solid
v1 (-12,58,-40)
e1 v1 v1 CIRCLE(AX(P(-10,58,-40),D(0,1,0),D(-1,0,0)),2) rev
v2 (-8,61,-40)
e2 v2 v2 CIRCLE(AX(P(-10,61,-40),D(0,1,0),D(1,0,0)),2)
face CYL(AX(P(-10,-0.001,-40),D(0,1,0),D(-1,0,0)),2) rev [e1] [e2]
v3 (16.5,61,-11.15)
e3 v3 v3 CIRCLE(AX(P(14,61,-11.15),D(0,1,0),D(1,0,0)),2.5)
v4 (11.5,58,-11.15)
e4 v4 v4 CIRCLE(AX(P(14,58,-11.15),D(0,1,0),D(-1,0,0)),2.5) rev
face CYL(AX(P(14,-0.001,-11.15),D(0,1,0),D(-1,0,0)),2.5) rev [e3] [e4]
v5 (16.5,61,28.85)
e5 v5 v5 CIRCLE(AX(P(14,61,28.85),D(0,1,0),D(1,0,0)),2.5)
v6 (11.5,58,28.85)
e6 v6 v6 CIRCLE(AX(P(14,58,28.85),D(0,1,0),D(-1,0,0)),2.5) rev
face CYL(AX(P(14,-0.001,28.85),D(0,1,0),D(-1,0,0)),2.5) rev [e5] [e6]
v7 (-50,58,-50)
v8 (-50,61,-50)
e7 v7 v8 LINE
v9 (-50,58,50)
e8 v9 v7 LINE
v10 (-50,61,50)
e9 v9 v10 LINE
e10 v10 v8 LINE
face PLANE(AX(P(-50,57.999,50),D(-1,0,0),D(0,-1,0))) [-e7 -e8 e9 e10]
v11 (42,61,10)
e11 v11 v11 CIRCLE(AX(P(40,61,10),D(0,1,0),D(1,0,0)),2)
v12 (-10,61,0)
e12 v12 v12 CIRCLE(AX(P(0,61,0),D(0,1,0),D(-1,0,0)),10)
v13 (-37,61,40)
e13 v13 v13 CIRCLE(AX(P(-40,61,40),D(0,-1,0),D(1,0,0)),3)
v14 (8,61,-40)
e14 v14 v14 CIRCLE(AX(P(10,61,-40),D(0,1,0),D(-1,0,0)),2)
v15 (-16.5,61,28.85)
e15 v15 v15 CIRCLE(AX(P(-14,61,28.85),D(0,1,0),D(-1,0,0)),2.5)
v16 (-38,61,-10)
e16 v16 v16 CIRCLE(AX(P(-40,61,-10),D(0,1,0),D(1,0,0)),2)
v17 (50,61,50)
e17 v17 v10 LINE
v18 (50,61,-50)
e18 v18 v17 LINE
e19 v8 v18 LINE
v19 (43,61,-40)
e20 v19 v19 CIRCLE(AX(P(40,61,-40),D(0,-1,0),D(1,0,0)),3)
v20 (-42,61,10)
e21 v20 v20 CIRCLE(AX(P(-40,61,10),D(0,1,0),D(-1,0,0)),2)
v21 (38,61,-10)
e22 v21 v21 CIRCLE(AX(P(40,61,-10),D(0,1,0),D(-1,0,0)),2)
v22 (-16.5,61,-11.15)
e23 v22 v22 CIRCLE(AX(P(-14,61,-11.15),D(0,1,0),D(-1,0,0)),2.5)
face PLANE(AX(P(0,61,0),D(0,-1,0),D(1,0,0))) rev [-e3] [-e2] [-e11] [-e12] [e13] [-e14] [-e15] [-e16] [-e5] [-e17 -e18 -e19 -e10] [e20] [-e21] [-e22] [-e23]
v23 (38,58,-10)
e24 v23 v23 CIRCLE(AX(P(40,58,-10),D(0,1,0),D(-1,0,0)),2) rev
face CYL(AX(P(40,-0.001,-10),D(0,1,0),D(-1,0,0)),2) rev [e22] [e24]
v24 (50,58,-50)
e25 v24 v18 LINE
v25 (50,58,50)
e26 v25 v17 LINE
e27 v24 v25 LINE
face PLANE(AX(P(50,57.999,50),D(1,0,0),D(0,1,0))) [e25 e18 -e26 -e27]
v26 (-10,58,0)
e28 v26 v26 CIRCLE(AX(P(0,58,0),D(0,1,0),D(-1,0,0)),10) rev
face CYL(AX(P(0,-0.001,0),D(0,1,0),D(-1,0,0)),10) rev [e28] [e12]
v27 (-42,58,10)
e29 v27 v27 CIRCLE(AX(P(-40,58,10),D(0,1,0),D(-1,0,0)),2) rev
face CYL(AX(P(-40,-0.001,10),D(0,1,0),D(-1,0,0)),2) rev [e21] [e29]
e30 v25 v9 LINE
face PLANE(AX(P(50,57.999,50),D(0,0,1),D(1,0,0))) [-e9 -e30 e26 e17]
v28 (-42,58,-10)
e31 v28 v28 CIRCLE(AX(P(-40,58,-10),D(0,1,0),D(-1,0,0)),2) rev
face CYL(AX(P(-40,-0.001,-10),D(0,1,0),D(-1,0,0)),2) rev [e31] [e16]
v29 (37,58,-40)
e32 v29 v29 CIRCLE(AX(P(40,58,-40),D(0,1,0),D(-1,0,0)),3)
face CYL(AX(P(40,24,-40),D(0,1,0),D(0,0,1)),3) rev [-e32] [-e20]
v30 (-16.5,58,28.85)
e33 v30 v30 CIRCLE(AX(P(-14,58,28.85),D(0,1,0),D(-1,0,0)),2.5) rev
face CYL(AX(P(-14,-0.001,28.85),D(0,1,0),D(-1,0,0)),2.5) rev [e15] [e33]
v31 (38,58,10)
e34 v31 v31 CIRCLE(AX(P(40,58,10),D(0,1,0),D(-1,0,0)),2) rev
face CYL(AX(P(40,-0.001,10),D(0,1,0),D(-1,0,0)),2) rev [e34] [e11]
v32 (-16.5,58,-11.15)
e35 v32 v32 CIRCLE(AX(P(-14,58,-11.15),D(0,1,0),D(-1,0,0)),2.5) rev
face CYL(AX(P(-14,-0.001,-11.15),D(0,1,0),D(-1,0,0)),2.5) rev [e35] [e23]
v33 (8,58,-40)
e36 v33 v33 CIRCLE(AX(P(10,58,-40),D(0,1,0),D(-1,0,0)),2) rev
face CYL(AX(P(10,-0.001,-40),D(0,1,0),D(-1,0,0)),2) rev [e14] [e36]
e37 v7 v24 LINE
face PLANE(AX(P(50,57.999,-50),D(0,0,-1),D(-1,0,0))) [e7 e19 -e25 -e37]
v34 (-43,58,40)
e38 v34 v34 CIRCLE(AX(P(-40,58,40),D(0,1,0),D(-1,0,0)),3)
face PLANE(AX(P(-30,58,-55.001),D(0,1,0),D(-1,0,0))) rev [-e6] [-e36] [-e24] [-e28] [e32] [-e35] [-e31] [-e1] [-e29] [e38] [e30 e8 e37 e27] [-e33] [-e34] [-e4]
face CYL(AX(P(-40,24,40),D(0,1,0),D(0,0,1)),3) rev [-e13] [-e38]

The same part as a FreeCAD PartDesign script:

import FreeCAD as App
import Part
import Sketcher

doc = App.newDocument("Part")
body = doc.addObject("PartDesign::Body", "Body")

sketch1 = body.newObject("Sketcher::SketchObject", "Sketch")
sketch1.AttachmentSupport = (doc.getObject("XZ_Plane"), [""])
sketch1.MapMode = "FlatFace"
sketch1.addGeometry(Part.LineSegment(App.Vector(-55, -55, 0), App.Vector(-55, 55, 0)), False)
sketch1.addGeometry(Part.LineSegment(App.Vector(-55, 55, 0), App.Vector(55, 55, 0)), False)
sketch1.addGeometry(Part.LineSegment(App.Vector(55, 55, 0), App.Vector(55, -55, 0)), False)
sketch1.addGeometry(Part.LineSegment(App.Vector(55, -55, 0), App.Vector(-55, -55, 0)), False)
sketch1.addGeometry(Part.LineSegment(App.Vector(50, 50, 0), App.Vector(-50, 50, 0)), False)
sketch1.addGeometry(Part.LineSegment(App.Vector(-50, 50, 0), App.Vector(-50, -50, 0)), False)
sketch1.addGeometry(Part.LineSegment(App.Vector(-50, -50, 0), App.Vector(50, -50, 0)), False)
sketch1.addGeometry(Part.LineSegment(App.Vector(50, -50, 0), App.Vector(50, 50, 0)), False)
sketch1.addConstraint(Sketcher.Constraint("Coincident", 0, 2, 1, 1))
sketch1.addConstraint(Sketcher.Constraint("Coincident", 1, 2, 2, 1))
sketch1.addConstraint(Sketcher.Constraint("Coincident", 2, 2, 3, 1))
sketch1.addConstraint(Sketcher.Constraint("Coincident", 3, 2, 0, 1))
sketch1.addConstraint(Sketcher.Constraint("Coincident", 4, 2, 5, 1))
sketch1.addConstraint(Sketcher.Constraint("Coincident", 5, 2, 6, 1))
sketch1.addConstraint(Sketcher.Constraint("Coincident", 6, 2, 7, 1))
sketch1.addConstraint(Sketcher.Constraint("Coincident", 7, 2, 4, 1))
sketch1.addConstraint(Sketcher.Constraint("Vertical", 0))
sketch1.addConstraint(Sketcher.Constraint("Horizontal", 1))
sketch1.addConstraint(Sketcher.Constraint("Vertical", 2))
sketch1.addConstraint(Sketcher.Constraint("Horizontal", 3))
sketch1.addConstraint(Sketcher.Constraint("Horizontal", 4))
sketch1.addConstraint(Sketcher.Constraint("Vertical", 5))
sketch1.addConstraint(Sketcher.Constraint("Horizontal", 6))
sketch1.addConstraint(Sketcher.Constraint("Vertical", 7))
sketch1.addConstraint(Sketcher.Constraint("Symmetric", 0, 2, 2, 2, -1, 1))
sketch1.addConstraint(Sketcher.Constraint("Symmetric", 4, 2, 6, 2, -1, 1))
sketch1.addConstraint(Sketcher.Constraint("Equal", 3, 0))
sketch1.addConstraint(Sketcher.Constraint("Equal", 6, 5))
sketch1.addConstraint(Sketcher.Constraint("DistanceX", 1, 1, 1, 2, 110.0))
sketch1.addConstraint(Sketcher.Constraint("DistanceX", 4, 2, 4, 1, 100.0))
pad1 = body.newObject("PartDesign::Pad", "Pad")
pad1.Profile = sketch1
pad1.Length = 89
pad1.Reversed = True

sketch2 = body.newObject("Sketcher::SketchObject", "Sketch001")
sketch2.AttachmentSupport = (doc.getObject("XZ_Plane"), [""])
sketch2.MapMode = "FlatFace"
sketch2.AttachmentOffset = App.Placement(App.Vector(0, 0, -89), App.Rotation())
sketch2.addGeometry(Part.LineSegment(App.Vector(-55, -55, 0), App.Vector(-55, 55, 0)), False)
sketch2.addGeometry(Part.LineSegment(App.Vector(-55, 55, 0), App.Vector(55, 55, 0)), False)
sketch2.addGeometry(Part.LineSegment(App.Vector(55, 55, 0), App.Vector(55, -55, 0)), False)
sketch2.addGeometry(Part.LineSegment(App.Vector(55, -55, 0), App.Vector(-55, -55, 0)), False)
sketch2.addConstraint(Sketcher.Constraint("Coincident", 0, 2, 1, 1))
sketch2.addConstraint(Sketcher.Constraint("Coincident", 1, 2, 2, 1))
sketch2.addConstraint(Sketcher.Constraint("Coincident", 2, 2, 3, 1))
sketch2.addConstraint(Sketcher.Constraint("Coincident", 3, 2, 0, 1))
sketch2.addConstraint(Sketcher.Constraint("Vertical", 0))
sketch2.addConstraint(Sketcher.Constraint("Horizontal", 1))
sketch2.addConstraint(Sketcher.Constraint("Vertical", 2))
sketch2.addConstraint(Sketcher.Constraint("Horizontal", 3))
sketch2.addConstraint(Sketcher.Constraint("Symmetric", 0, 2, 2, 2, -1, 1))
sketch2.addConstraint(Sketcher.Constraint("Equal", 3, 0))
sketch2.addConstraint(Sketcher.Constraint("DistanceX", 1, 1, 1, 2, 110.0))
pad2 = body.newObject("PartDesign::Pad", "Pad001")
pad2.Profile = sketch2
pad2.Length = 8
pad2.Reversed = True

sketch3 = body.newObject("Sketcher::SketchObject", "Sketch002")
sketch3.AttachmentSupport = (doc.getObject("XY_Plane"), [""])
sketch3.MapMode = "FlatFace"
sketch3.AttachmentOffset = App.Placement(App.Vector(0, 0, 55), App.Rotation())
sketch3.addGeometry(Part.LineSegment(App.Vector(-30, 58, 0), App.Vector(-30, 0, 0)), False)
sketch3.addGeometry(Part.LineSegment(App.Vector(-30, 0, 0), App.Vector(30, 0, 0)), False)
sketch3.addGeometry(Part.LineSegment(App.Vector(30, 0, 0), App.Vector(30, 58, 0)), False)
sketch3.addGeometry(Part.LineSegment(App.Vector(30, 58, 0), App.Vector(-30, 58, 0)), False)
sketch3.addConstraint(Sketcher.Constraint("Coincident", 0, 2, 1, 1))
sketch3.addConstraint(Sketcher.Constraint("Coincident", 1, 2, 2, 1))
sketch3.addConstraint(Sketcher.Constraint("Coincident", 2, 2, 3, 1))
sketch3.addConstraint(Sketcher.Constraint("Coincident", 3, 2, 0, 1))
sketch3.addConstraint(Sketcher.Constraint("Vertical", 0))
sketch3.addConstraint(Sketcher.Constraint("Horizontal", 1))
sketch3.addConstraint(Sketcher.Constraint("Vertical", 2))
sketch3.addConstraint(Sketcher.Constraint("Horizontal", 3))
sketch3.addConstraint(Sketcher.Constraint("Symmetric", 0, 2, 1, 2, -1, 1))
sketch3.addConstraint(Sketcher.Constraint("DistanceX", 1, 1, 1, 2, 60.0))
sketch3.addConstraint(Sketcher.Constraint("DistanceY", 0, 2, 0, 1, 58.0))
pocket1 = body.newObject("PartDesign::Pocket", "Pocket")
pocket1.Profile = sketch3
pocket1.Type = "UpToFirst"

sketch4 = body.newObject("Sketcher::SketchObject", "Sketch003")
sketch4.AttachmentSupport = (doc.getObject("XY_Plane"), [""])
sketch4.MapMode = "FlatFace"
sketch4.addGeometry(Part.LineSegment(App.Vector(0, 97, 0), App.Vector(-21, 97, 0)), False)
sketch4.addGeometry(Part.LineSegment(App.Vector(-21, 97, 0), App.Vector(-21, 94.5, 0)), False)
sketch4.addGeometry(Part.LineSegment(App.Vector(-21, 94.5, 0), App.Vector(-16.2, 94.5, 0)), False)
sketch4.addGeometry(Part.LineSegment(App.Vector(-16.2, 94.5, 0), App.Vector(-16.2, 88.5, 0)), False)
sketch4.addGeometry(Part.LineSegment(App.Vector(-16.2, 88.5, 0), App.Vector(0, 88.5, 0)), False)
sketch4.addGeometry(Part.LineSegment(App.Vector(0, 88.5, 0), App.Vector(0, 97, 0)), False)
sketch4.addConstraint(Sketcher.Constraint("Coincident", 0, 2, 1, 1))
sketch4.addConstraint(Sketcher.Constraint("Coincident", 1, 2, 2, 1))
sketch4.addConstraint(Sketcher.Constraint("Coincident", 2, 2, 3, 1))
sketch4.addConstraint(Sketcher.Constraint("Coincident", 3, 2, 4, 1))
sketch4.addConstraint(Sketcher.Constraint("Coincident", 4, 2, 5, 1))
sketch4.addConstraint(Sketcher.Constraint("Coincident", 5, 2, 0, 1))
sketch4.addConstraint(Sketcher.Constraint("Horizontal", 0))
sketch4.addConstraint(Sketcher.Constraint("Vertical", 1))
sketch4.addConstraint(Sketcher.Constraint("Horizontal", 2))
sketch4.addConstraint(Sketcher.Constraint("Vertical", 3))
sketch4.addConstraint(Sketcher.Constraint("Horizontal", 4))
sketch4.addConstraint(Sketcher.Constraint("Vertical", 5))
sketch4.addConstraint(Sketcher.Constraint("PointOnObject", 4, 2, -2))
sketch4.addConstraint(Sketcher.Constraint("DistanceX", 0, 2, 0, 1, 21.0))
sketch4.addConstraint(Sketcher.Constraint("DistanceY", 3, 2, 3, 1, 6.0))
sketch4.addConstraint(Sketcher.Constraint("DistanceX", 2, 1, 2, 2, 4.8))
sketch4.addConstraint(Sketcher.Constraint("DistanceY", 1, 2, 1, 1, 2.5))
sketch4.addConstraint(Sketcher.Constraint("DistanceY", -1, 1, 0, 2, 97.0))
groove = body.newObject("PartDesign::Groove", "Groove")
groove.Profile = sketch4
groove.ReferenceAxis = (sketch4, ["V_Axis"])
groove.Angle = 360

sketch5 = body.newObject("Sketcher::SketchObject", "Sketch004")
sketch5.AttachmentSupport = (doc.getObject("XZ_Plane"), [""])
sketch5.MapMode = "FlatFace"
sketch5.AttachmentOffset = App.Placement(App.Vector(0, 0, -58), App.Rotation())
sketch5.addGeometry(Part.LineSegment(App.Vector(-55, 55, 0), App.Vector(-55, -55, 0)), False)
sketch5.addGeometry(Part.LineSegment(App.Vector(-55, -55, 0), App.Vector(55, -55, 0)), False)
sketch5.addGeometry(Part.LineSegment(App.Vector(55, -55, 0), App.Vector(55, 55, 0)), False)
sketch5.addGeometry(Part.LineSegment(App.Vector(55, 55, 0), App.Vector(-55, 55, 0)), False)
sketch5.addConstraint(Sketcher.Constraint("Coincident", 0, 2, 1, 1))
sketch5.addConstraint(Sketcher.Constraint("Coincident", 1, 2, 2, 1))
sketch5.addConstraint(Sketcher.Constraint("Coincident", 2, 2, 3, 1))
sketch5.addConstraint(Sketcher.Constraint("Coincident", 3, 2, 0, 1))
sketch5.addConstraint(Sketcher.Constraint("Vertical", 0))
sketch5.addConstraint(Sketcher.Constraint("Horizontal", 1))
sketch5.addConstraint(Sketcher.Constraint("Vertical", 2))
sketch5.addConstraint(Sketcher.Constraint("Horizontal", 3))
sketch5.addConstraint(Sketcher.Constraint("Symmetric", 0, 2, 2, 2, -1, 1))
sketch5.addConstraint(Sketcher.Constraint("Equal", 3, 0))
sketch5.addConstraint(Sketcher.Constraint("DistanceX", 1, 1, 1, 2, 110.0))
pad3 = body.newObject("PartDesign::Pad", "Pad002")
pad3.Profile = sketch5
pad3.Length = 3
pad3.Reversed = True

sketch6 = body.newObject("Sketcher::SketchObject", "Sketch005")
sketch6.AttachmentSupport = (doc.getObject("XZ_Plane"), [""])
sketch6.MapMode = "FlatFace"
sketch6.AttachmentOffset = App.Placement(App.Vector(0, 0, -61), App.Rotation())
sketch6.addGeometry(Part.Circle(App.Vector(0, 0, 0), App.Vector(0, 0, 1), 10), False)
sketch6.addConstraint(Sketcher.Constraint("Coincident", 0, 3, -1, 1))
sketch6.addConstraint(Sketcher.Constraint("Diameter", 0, 20.0))
pocket2 = body.newObject("PartDesign::Pocket", "Pocket001")
pocket2.Profile = sketch6
pocket2.Type = "UpToFirst"
pocket2.Reversed = True

sketch7 = body.newObject("Sketcher::SketchObject", "Sketch006")
sketch7.AttachmentSupport = (doc.getObject("XY_Plane"), [""])
sketch7.MapMode = "FlatFace"
sketch7.addGeometry(Part.LineSegment(App.Vector(-35, 89, 0), App.Vector(-50, 89, 0)), False)
sketch7.addGeometry(Part.LineSegment(App.Vector(-50, 89, 0), App.Vector(-50, 69, 0)), False)
sketch7.addGeometry(Part.LineSegment(App.Vector(-50, 69, 0), App.Vector(-35, 89, 0)), False)
sketch7.addConstraint(Sketcher.Constraint("Coincident", 0, 2, 1, 1))
sketch7.addConstraint(Sketcher.Constraint("Coincident", 1, 2, 2, 1))
sketch7.addConstraint(Sketcher.Constraint("Coincident", 2, 2, 0, 1))
sketch7.addConstraint(Sketcher.Constraint("Horizontal", 0))
sketch7.addConstraint(Sketcher.Constraint("Vertical", 1))
sketch7.addConstraint(Sketcher.Constraint("DistanceX", 0, 2, 0, 1, 15.0))
sketch7.addConstraint(Sketcher.Constraint("DistanceY", 1, 2, 1, 1, 20.0))
sketch7.addConstraint(Sketcher.Constraint("DistanceX", 0, 2, -1, 1, 50.0))
sketch7.addConstraint(Sketcher.Constraint("DistanceY", -1, 1, 0, 2, 89.0))
pad4 = body.newObject("PartDesign::Pad", "Pad003")
pad4.Profile = sketch7
pad4.Length = 3
pad4.Midplane = True
doc.recompute()

mirrored = body.newObject("PartDesign::Mirrored", "Mirrored")
mirrored.Originals = [pad4]
mirrored.MirrorPlane = (doc.getObject("YZ_Plane"), [""])
body.Tip = mirrored

sketch8 = body.newObject("Sketcher::SketchObject", "Sketch007")
sketch8.AttachmentSupport = (doc.getObject("YZ_Plane"), [""])
sketch8.MapMode = "FlatFace"
sketch8.addGeometry(Part.LineSegment(App.Vector(89, 35, 0), App.Vector(89, 50, 0)), False)
sketch8.addGeometry(Part.LineSegment(App.Vector(89, 50, 0), App.Vector(69, 50, 0)), False)
sketch8.addGeometry(Part.LineSegment(App.Vector(69, 50, 0), App.Vector(89, 35, 0)), False)
sketch8.addConstraint(Sketcher.Constraint("Coincident", 0, 2, 1, 1))
sketch8.addConstraint(Sketcher.Constraint("Coincident", 1, 2, 2, 1))
sketch8.addConstraint(Sketcher.Constraint("Coincident", 2, 2, 0, 1))
sketch8.addConstraint(Sketcher.Constraint("Vertical", 0))
sketch8.addConstraint(Sketcher.Constraint("Horizontal", 1))
sketch8.addConstraint(Sketcher.Constraint("DistanceX", 1, 2, 1, 1, 20.0))
sketch8.addConstraint(Sketcher.Constraint("DistanceY", 0, 1, 0, 2, 15.0))
sketch8.addConstraint(Sketcher.Constraint("DistanceX", -1, 1, 0, 2, 89.0))
sketch8.addConstraint(Sketcher.Constraint("DistanceY", -1, 1, 0, 2, 50.0))
pad5 = body.newObject("PartDesign::Pad", "Pad004")
pad5.Profile = sketch8
pad5.Length = 3
pad5.Midplane = True
doc.recompute()

mirrored2 = body.newObject("PartDesign::Mirrored", "Mirrored001")
mirrored2.Originals = [pad5]
mirrored2.MirrorPlane = (doc.getObject("XY_Plane"), [""])
body.Tip = mirrored2

sketch9 = body.newObject("Sketcher::SketchObject", "Sketch008")
sketch9.AttachmentSupport = (doc.getObject("XZ_Plane"), [""])
sketch9.MapMode = "FlatFace"
sketch9.AttachmentOffset = App.Placement(App.Vector(0, 0, -97), App.Rotation())
sketch9.addGeometry(Part.Circle(App.Vector(40, -40, 0), App.Vector(0, 0, 1), 3), False)
sketch9.addGeometry(Part.Circle(App.Vector(-40, 40, 0), App.Vector(0, 0, 1), 3), False)
sketch9.addConstraint(Sketcher.Constraint("Equal", 0, 1))
sketch9.addConstraint(Sketcher.Constraint("Symmetric", 0, 3, 1, 3, -1, 1))
sketch9.addConstraint(Sketcher.Constraint("Diameter", 0, 6.0))
sketch9.addConstraint(Sketcher.Constraint("DistanceX", -1, 1, 0, 3, 40.0))
sketch9.addConstraint(Sketcher.Constraint("DistanceY", 0, 3, -1, 1, 40.0))
pocket3 = body.newObject("PartDesign::Pocket", "Pocket002")
pocket3.Profile = sketch9
pocket3.Length = 73
pocket3.Reversed = True

sketch10 = body.newObject("Sketcher::SketchObject", "Sketch009")
sketch10.AttachmentSupport = (doc.getObject("YZ_Plane"), [""])
sketch10.MapMode = "FlatFace"
sketch10.AttachmentOffset = App.Placement(App.Vector(0, 0, -50), App.Rotation())
sketch10.addGeometry(Part.LineSegment(App.Vector(63, 25, 0), App.Vector(61, 25, 0)), False)
sketch10.addGeometry(Part.LineSegment(App.Vector(61, 25, 0), App.Vector(61, 23, 0)), False)
sketch10.addGeometry(Part.LineSegment(App.Vector(61, 23, 0), App.Vector(63, 23, 0)), False)
sketch10.addGeometry(Part.LineSegment(App.Vector(63, 23, 0), App.Vector(63, 25, 0)), False)
sketch10.addGeometry(Part.LineSegment(App.Vector(63, -23, 0), App.Vector(61, -23, 0)), False)
sketch10.addGeometry(Part.LineSegment(App.Vector(61, -23, 0), App.Vector(61, -25, 0)), False)
sketch10.addGeometry(Part.LineSegment(App.Vector(61, -25, 0), App.Vector(63, -25, 0)), False)
sketch10.addGeometry(Part.LineSegment(App.Vector(63, -25, 0), App.Vector(63, -23, 0)), False)
sketch10.addConstraint(Sketcher.Constraint("Coincident", 0, 2, 1, 1))
sketch10.addConstraint(Sketcher.Constraint("Coincident", 1, 2, 2, 1))
sketch10.addConstraint(Sketcher.Constraint("Coincident", 2, 2, 3, 1))
sketch10.addConstraint(Sketcher.Constraint("Coincident", 3, 2, 0, 1))
sketch10.addConstraint(Sketcher.Constraint("Coincident", 4, 2, 5, 1))
sketch10.addConstraint(Sketcher.Constraint("Coincident", 5, 2, 6, 1))
sketch10.addConstraint(Sketcher.Constraint("Coincident", 6, 2, 7, 1))
sketch10.addConstraint(Sketcher.Constraint("Coincident", 7, 2, 4, 1))
sketch10.addConstraint(Sketcher.Constraint("Horizontal", 0))
sketch10.addConstraint(Sketcher.Constraint("Vertical", 1))
sketch10.addConstraint(Sketcher.Constraint("Horizontal", 2))
sketch10.addConstraint(Sketcher.Constraint("Vertical", 3))
sketch10.addConstraint(Sketcher.Constraint("Horizontal", 4))
sketch10.addConstraint(Sketcher.Constraint("Vertical", 5))
sketch10.addConstraint(Sketcher.Constraint("Horizontal", 6))
sketch10.addConstraint(Sketcher.Constraint("Vertical", 7))
sketch10.addConstraint(Sketcher.Constraint("Symmetric", 1, 2, 4, 2, -1))
sketch10.addConstraint(Sketcher.Constraint("Symmetric", 3, 2, 6, 2, -1))
sketch10.addConstraint(Sketcher.Constraint("Equal", 6, 1))
sketch10.addConstraint(Sketcher.Constraint("DistanceX", 0, 2, 0, 1, 2.0))
sketch10.addConstraint(Sketcher.Constraint("DistanceX", -1, 1, 0, 2, 61.0))
sketch10.addConstraint(Sketcher.Constraint("DistanceY", -1, 1, 0, 2, 25.0))
pocket4 = body.newObject("PartDesign::Pocket", "Pocket003")
pocket4.Profile = sketch10
pocket4.Type = "ThroughAll"
pocket4.Midplane = True

sketch11 = body.newObject("Sketcher::SketchObject", "Sketch010")
sketch11.AttachmentSupport = (doc.getObject("XZ_Plane"), [""])
sketch11.MapMode = "FlatFace"
sketch11.AttachmentOffset = App.Placement(App.Vector(0, 0, -61), App.Rotation())
sketch11.addGeometry(Part.Circle(App.Vector(-14, -11.15, 0), App.Vector(0, 0, 1), 2.5), False)
sketch11.addConstraint(Sketcher.Constraint("Diameter", 0, 5.0))
sketch11.addConstraint(Sketcher.Constraint("DistanceX", 0, 3, -1, 1, 14.0))
sketch11.addConstraint(Sketcher.Constraint("DistanceY", 0, 3, -1, 1, 11.15))
pocket5 = body.newObject("PartDesign::Pocket", "Pocket004")
pocket5.Profile = sketch11
pocket5.Type = "UpToFirst"
pocket5.Reversed = True

sketch12 = body.newObject("Sketcher::SketchObject", "Sketch011")
sketch12.AttachmentSupport = (doc.getObject("XZ_Plane"), [""])
sketch12.MapMode = "FlatFace"
sketch12.AttachmentOffset = App.Placement(App.Vector(0, 0, -61), App.Rotation())
sketch12.addGeometry(Part.Circle(App.Vector(-14, 28.85, 0), App.Vector(0, 0, 1), 2.5), False)
sketch12.addConstraint(Sketcher.Constraint("Diameter", 0, 5.0))
sketch12.addConstraint(Sketcher.Constraint("DistanceX", 0, 3, -1, 1, 14.0))
sketch12.addConstraint(Sketcher.Constraint("DistanceY", -1, 1, 0, 3, 28.85))
pocket6 = body.newObject("PartDesign::Pocket", "Pocket005")
pocket6.Profile = sketch12
pocket6.Type = "UpToFirst"
pocket6.Reversed = True

sketch13 = body.newObject("Sketcher::SketchObject", "Sketch012")
sketch13.AttachmentSupport = (doc.getObject("XZ_Plane"), [""])
sketch13.MapMode = "FlatFace"
sketch13.AttachmentOffset = App.Placement(App.Vector(0, 0, -61), App.Rotation())
sketch13.addGeometry(Part.Circle(App.Vector(14, 28.85, 0), App.Vector(0, 0, 1), 2.5), False)
sketch13.addConstraint(Sketcher.Constraint("Diameter", 0, 5.0))
sketch13.addConstraint(Sketcher.Constraint("DistanceX", -1, 1, 0, 3, 14.0))
sketch13.addConstraint(Sketcher.Constraint("DistanceY", -1, 1, 0, 3, 28.85))
pocket7 = body.newObject("PartDesign::Pocket", "Pocket006")
pocket7.Profile = sketch13
pocket7.Type = "UpToFirst"
pocket7.Reversed = True

sketch14 = body.newObject("Sketcher::SketchObject", "Sketch013")
sketch14.AttachmentSupport = (doc.getObject("XZ_Plane"), [""])
sketch14.MapMode = "FlatFace"
sketch14.AttachmentOffset = App.Placement(App.Vector(0, 0, -61), App.Rotation())
sketch14.addGeometry(Part.Circle(App.Vector(14, -11.15, 0), App.Vector(0, 0, 1), 2.5), False)
sketch14.addConstraint(Sketcher.Constraint("Diameter", 0, 5.0))
sketch14.addConstraint(Sketcher.Constraint("DistanceX", -1, 1, 0, 3, 14.0))
sketch14.addConstraint(Sketcher.Constraint("DistanceY", 0, 3, -1, 1, 11.15))
pocket8 = body.newObject("PartDesign::Pocket", "Pocket007")
pocket8.Profile = sketch14
pocket8.Type = "UpToFirst"
pocket8.Reversed = True

sketch15 = body.newObject("Sketcher::SketchObject", "Sketch014")
sketch15.AttachmentSupport = (doc.getObject("XZ_Plane"), [""])
sketch15.MapMode = "FlatFace"
sketch15.AttachmentOffset = App.Placement(App.Vector(0, 0, -61), App.Rotation())
sketch15.addGeometry(Part.Circle(App.Vector(0, 0, 0), App.Vector(0, 0, 1), 14), False)
sketch15.addGeometry(Part.Circle(App.Vector(0, 0, 0), App.Vector(0, 0, 1), 11), False)
sketch15.addConstraint(Sketcher.Constraint("Coincident", 0, 3, -1, 1))
sketch15.addConstraint(Sketcher.Constraint("Coincident", 1, 3, -1, 1))
sketch15.addConstraint(Sketcher.Constraint("Diameter", 0, 28.0))
sketch15.addConstraint(Sketcher.Constraint("Diameter", 1, 22.0))
pad6 = body.newObject("PartDesign::Pad", "Pad005")
pad6.Profile = sketch15
pad6.Length = 7
pad6.Reversed = True

sketch16 = body.newObject("Sketcher::SketchObject", "Sketch015")
sketch16.AttachmentSupport = (doc.getObject("XY_Plane"), [""])
sketch16.MapMode = "FlatFace"
sketch16.AttachmentOffset = App.Placement(App.Vector(0, 0, -50), App.Rotation())
sketch16.addGeometry(Part.Circle(App.Vector(10, 48, 0), App.Vector(0, 0, 1), 2), False)
sketch16.addConstraint(Sketcher.Constraint("Diameter", 0, 4.0))
sketch16.addConstraint(Sketcher.Constraint("DistanceX", -1, 1, 0, 3, 10.0))
sketch16.addConstraint(Sketcher.Constraint("DistanceY", -1, 1, 0, 3, 48.0))
pocket9 = body.newObject("PartDesign::Pocket", "Pocket008")
pocket9.Profile = sketch16
pocket9.Type = "UpToFirst"

sketch17 = body.newObject("Sketcher::SketchObject", "Sketch016")
sketch17.AttachmentSupport = (doc.getObject("XY_Plane"), [""])
sketch17.MapMode = "FlatFace"
sketch17.AttachmentOffset = App.Placement(App.Vector(0, 0, -50), App.Rotation())
sketch17.addGeometry(Part.Circle(App.Vector(-10, 48, 0), App.Vector(0, 0, 1), 2), False)
sketch17.addConstraint(Sketcher.Constraint("Diameter", 0, 4.0))
sketch17.addConstraint(Sketcher.Constraint("DistanceX", 0, 3, -1, 1, 10.0))
sketch17.addConstraint(Sketcher.Constraint("DistanceY", -1, 1, 0, 3, 48.0))
pocket10 = body.newObject("PartDesign::Pocket", "Pocket009")
pocket10.Profile = sketch17
pocket10.Type = "UpToFirst"

sketch18 = body.newObject("Sketcher::SketchObject", "Sketch017")
sketch18.AttachmentSupport = (doc.getObject("YZ_Plane"), [""])
sketch18.MapMode = "FlatFace"
sketch18.addGeometry(Part.Circle(App.Vector(48, -10, 0), App.Vector(0, 0, 1), 2), False)
sketch18.addGeometry(Part.Circle(App.Vector(48, 10, 0), App.Vector(0, 0, 1), 2), False)
sketch18.addConstraint(Sketcher.Constraint("Equal", 0, 1))
sketch18.addConstraint(Sketcher.Constraint("Symmetric", 0, 3, 1, 3, -1))
sketch18.addConstraint(Sketcher.Constraint("Diameter", 0, 4.0))
sketch18.addConstraint(Sketcher.Constraint("DistanceX", -1, 1, 0, 3, 48.0))
sketch18.addConstraint(Sketcher.Constraint("DistanceY", 0, 3, -1, 1, 10.0))
pocket11 = body.newObject("PartDesign::Pocket", "Pocket010")
pocket11.Profile = sketch18
pocket11.Length = 147
pocket11.Midplane = True

sketch19 = body.newObject("Sketcher::SketchObject", "Sketch018")
sketch19.AttachmentSupport = (doc.getObject("XZ_Plane"), [""])
sketch19.MapMode = "FlatFace"
sketch19.AttachmentOffset = App.Placement(App.Vector(0, 0, -61), App.Rotation())
sketch19.addGeometry(Part.Circle(App.Vector(40, -10, 0), App.Vector(0, 0, 1), 2), False)
sketch19.addConstraint(Sketcher.Constraint("Diameter", 0, 4.0))
sketch19.addConstraint(Sketcher.Constraint("DistanceX", -1, 1, 0, 3, 40.0))
sketch19.addConstraint(Sketcher.Constraint("DistanceY", 0, 3, -1, 1, 10.0))
pocket12 = body.newObject("PartDesign::Pocket", "Pocket011")
pocket12.Profile = sketch19
pocket12.Type = "UpToFirst"
pocket12.Reversed = True

sketch20 = body.newObject("Sketcher::SketchObject", "Sketch019")
sketch20.AttachmentSupport = (doc.getObject("XZ_Plane"), [""])
sketch20.MapMode = "FlatFace"
sketch20.AttachmentOffset = App.Placement(App.Vector(0, 0, -61), App.Rotation())
sketch20.addGeometry(Part.Circle(App.Vector(40, 10, 0), App.Vector(0, 0, 1), 2), False)
sketch20.addConstraint(Sketcher.Constraint("Diameter", 0, 4.0))
sketch20.addConstraint(Sketcher.Constraint("DistanceX", -1, 1, 0, 3, 40.0))
sketch20.addConstraint(Sketcher.Constraint("DistanceY", -1, 1, 0, 3, 10.0))
pocket13 = body.newObject("PartDesign::Pocket", "Pocket012")
pocket13.Profile = sketch20
pocket13.Type = "UpToFirst"
pocket13.Reversed = True

sketch21 = body.newObject("Sketcher::SketchObject", "Sketch020")
sketch21.AttachmentSupport = (doc.getObject("XZ_Plane"), [""])
sketch21.MapMode = "FlatFace"
sketch21.AttachmentOffset = App.Placement(App.Vector(0, 0, -61), App.Rotation())
sketch21.addGeometry(Part.Circle(App.Vector(-40, 10, 0), App.Vector(0, 0, 1), 2), False)
sketch21.addConstraint(Sketcher.Constraint("Diameter", 0, 4.0))
sketch21.addConstraint(Sketcher.Constraint("DistanceX", 0, 3, -1, 1, 40.0))
sketch21.addConstraint(Sketcher.Constraint("DistanceY", -1, 1, 0, 3, 10.0))
pocket14 = body.newObject("PartDesign::Pocket", "Pocket013")
pocket14.Profile = sketch21
pocket14.Type = "UpToFirst"
pocket14.Reversed = True

sketch22 = body.newObject("Sketcher::SketchObject", "Sketch021")
sketch22.AttachmentSupport = (doc.getObject("XZ_Plane"), [""])
sketch22.MapMode = "FlatFace"
sketch22.AttachmentOffset = App.Placement(App.Vector(0, 0, -61), App.Rotation())
sketch22.addGeometry(Part.Circle(App.Vector(-40, -10, 0), App.Vector(0, 0, 1), 2), False)
sketch22.addConstraint(Sketcher.Constraint("Diameter", 0, 4.0))
sketch22.addConstraint(Sketcher.Constraint("DistanceX", 0, 3, -1, 1, 40.0))
sketch22.addConstraint(Sketcher.Constraint("DistanceY", 0, 3, -1, 1, 10.0))
pocket15 = body.newObject("PartDesign::Pocket", "Pocket014")
pocket15.Profile = sketch22
pocket15.Type = "UpToFirst"
pocket15.Reversed = True

sketch23 = body.newObject("Sketcher::SketchObject", "Sketch022")
sketch23.AttachmentSupport = (doc.getObject("XZ_Plane"), [""])
sketch23.MapMode = "FlatFace"
sketch23.AttachmentOffset = App.Placement(App.Vector(0, 0, -61), App.Rotation())
sketch23.addGeometry(Part.Circle(App.Vector(10, -40, 0), App.Vector(0, 0, 1), 2), False)
sketch23.addConstraint(Sketcher.Constraint("Diameter", 0, 4.0))
sketch23.addConstraint(Sketcher.Constraint("DistanceX", -1, 1, 0, 3, 10.0))
sketch23.addConstraint(Sketcher.Constraint("DistanceY", 0, 3, -1, 1, 40.0))
pocket16 = body.newObject("PartDesign::Pocket", "Pocket015")
pocket16.Profile = sketch23
pocket16.Type = "UpToFirst"
pocket16.Reversed = True

sketch24 = body.newObject("Sketcher::SketchObject", "Sketch023")
sketch24.AttachmentSupport = (doc.getObject("XZ_Plane"), [""])
sketch24.MapMode = "FlatFace"
sketch24.AttachmentOffset = App.Placement(App.Vector(0, 0, -61), App.Rotation())
sketch24.addGeometry(Part.Circle(App.Vector(-10, -40, 0), App.Vector(0, 0, 1), 2), False)
sketch24.addConstraint(Sketcher.Constraint("Diameter", 0, 4.0))
sketch24.addConstraint(Sketcher.Constraint("DistanceX", 0, 3, -1, 1, 10.0))
sketch24.addConstraint(Sketcher.Constraint("DistanceY", 0, 3, -1, 1, 40.0))
pocket17 = body.newObject("PartDesign::Pocket", "Pocket016")
pocket17.Profile = sketch24
pocket17.Type = "UpToFirst"
pocket17.Reversed = True

sketch25 = body.newObject("Sketcher::SketchObject", "Sketch024")
sketch25.AttachmentSupport = (doc.getObject("XZ_Plane"), [""])
sketch25.MapMode = "FlatFace"
sketch25.AttachmentOffset = App.Placement(App.Vector(0, 0, -97), App.Rotation())
sketch25.addGeometry(Part.Circle(App.Vector(0, 0, 0), App.Vector(0, 0, 1), 24), False)
sketch25.addGeometry(Part.Circle(App.Vector(0, 0, 0), App.Vector(0, 0, 1), 21), False)
sketch25.addConstraint(Sketcher.Constraint("Coincident", 0, 3, -1, 1))
sketch25.addConstraint(Sketcher.Constraint("Coincident", 1, 3, -1, 1))
sketch25.addConstraint(Sketcher.Constraint("Diameter", 0, 48.0))
sketch25.addConstraint(Sketcher.Constraint("Diameter", 1, 42.0))
pad7 = body.newObject("PartDesign::Pad", "Pad006")
pad7.Profile = sketch25
pad7.Length = 5
pad7.Reversed = True

sketch26 = body.newObject("Sketcher::SketchObject", "Sketch025")
sketch26.AttachmentSupport = (doc.getObject("XZ_Plane"), [""])
sketch26.MapMode = "FlatFace"
sketch26.addGeometry(Part.LineSegment(App.Vector(-55, 55, 0), App.Vector(-55, -55, 0)), False)
sketch26.addGeometry(Part.LineSegment(App.Vector(-55, -55, 0), App.Vector(55, -55, 0)), False)
sketch26.addGeometry(Part.LineSegment(App.Vector(55, -55, 0), App.Vector(55, 55, 0)), False)
sketch26.addGeometry(Part.LineSegment(App.Vector(55, 55, 0), App.Vector(-55, 55, 0)), False)
sketch26.addConstraint(Sketcher.Constraint("Coincident", 0, 2, 1, 1))
sketch26.addConstraint(Sketcher.Constraint("Coincident", 1, 2, 2, 1))
sketch26.addConstraint(Sketcher.Constraint("Coincident", 2, 2, 3, 1))
sketch26.addConstraint(Sketcher.Constraint("Coincident", 3, 2, 0, 1))
sketch26.addConstraint(Sketcher.Constraint("Vertical", 0))
sketch26.addConstraint(Sketcher.Constraint("Horizontal", 1))
sketch26.addConstraint(Sketcher.Constraint("Vertical", 2))
sketch26.addConstraint(Sketcher.Constraint("Horizontal", 3))
sketch26.addConstraint(Sketcher.Constraint("Symmetric", 0, 2, 2, 2, -1, 1))
sketch26.addConstraint(Sketcher.Constraint("Equal", 3, 0))
sketch26.addConstraint(Sketcher.Constraint("DistanceX", 1, 1, 1, 2, 110.0))
pocket18 = body.newObject("PartDesign::Pocket", "Pocket017")
pocket18.Profile = sketch26
pocket18.Length = 58

sketch27 = body.newObject("Sketcher::SketchObject", "Sketch026")
sketch27.AttachmentSupport = (doc.getObject("XZ_Plane"), [""])
sketch27.MapMode = "FlatFace"
sketch27.AttachmentOffset = App.Placement(App.Vector(0, 0, -102), App.Rotation())
sketch27.addGeometry(Part.LineSegment(App.Vector(-55, -55, 0), App.Vector(-55, 55, 0)), False)
sketch27.addGeometry(Part.LineSegment(App.Vector(-55, 55, 0), App.Vector(55, 55, 0)), False)
sketch27.addGeometry(Part.LineSegment(App.Vector(55, 55, 0), App.Vector(55, -55, 0)), False)
sketch27.addGeometry(Part.LineSegment(App.Vector(55, -55, 0), App.Vector(-55, -55, 0)), False)
sketch27.addConstraint(Sketcher.Constraint("Coincident", 0, 2, 1, 1))
sketch27.addConstraint(Sketcher.Constraint("Coincident", 1, 2, 2, 1))
sketch27.addConstraint(Sketcher.Constraint("Coincident", 2, 2, 3, 1))
sketch27.addConstraint(Sketcher.Constraint("Coincident", 3, 2, 0, 1))
sketch27.addConstraint(Sketcher.Constraint("Vertical", 0))
sketch27.addConstraint(Sketcher.Constraint("Horizontal", 1))
sketch27.addConstraint(Sketcher.Constraint("Vertical", 2))
sketch27.addConstraint(Sketcher.Constraint("Horizontal", 3))
sketch27.addConstraint(Sketcher.Constraint("Symmetric", 0, 2, 2, 2, -1, 1))
sketch27.addConstraint(Sketcher.Constraint("Equal", 3, 0))
sketch27.addConstraint(Sketcher.Constraint("DistanceX", 1, 1, 1, 2, 110.0))
pocket19 = body.newObject("PartDesign::Pocket", "Pocket018")
pocket19.Profile = sketch27
pocket19.Length = 34
pocket19.Reversed = True

sketch28 = body.newObject("Sketcher::SketchObject", "Sketch027")
sketch28.AttachmentSupport = (doc.getObject("XZ_Plane"), [""])
sketch28.MapMode = "FlatFace"
sketch28.AttachmentOffset = App.Placement(App.Vector(0, 0, -68), App.Rotation())
sketch28.addGeometry(Part.LineSegment(App.Vector(-55, -55, 0), App.Vector(-55, 55, 0)), False)
sketch28.addGeometry(Part.LineSegment(App.Vector(-55, 55, 0), App.Vector(55, 55, 0)), False)
sketch28.addGeometry(Part.LineSegment(App.Vector(55, 55, 0), App.Vector(55, -55, 0)), False)
sketch28.addGeometry(Part.LineSegment(App.Vector(55, -55, 0), App.Vector(-55, -55, 0)), False)
sketch28.addGeometry(Part.LineSegment(App.Vector(50, 50, 0), App.Vector(-50, 50, 0)), False)
sketch28.addGeometry(Part.LineSegment(App.Vector(-50, 50, 0), App.Vector(-50, -50, 0)), False)
sketch28.addGeometry(Part.LineSegment(App.Vector(-50, -50, 0), App.Vector(50, -50, 0)), False)
sketch28.addGeometry(Part.LineSegment(App.Vector(50, -50, 0), App.Vector(50, 50, 0)), False)
sketch28.addConstraint(Sketcher.Constraint("Coincident", 0, 2, 1, 1))
sketch28.addConstraint(Sketcher.Constraint("Coincident", 1, 2, 2, 1))
sketch28.addConstraint(Sketcher.Constraint("Coincident", 2, 2, 3, 1))
sketch28.addConstraint(Sketcher.Constraint("Coincident", 3, 2, 0, 1))
sketch28.addConstraint(Sketcher.Constraint("Coincident", 4, 2, 5, 1))
sketch28.addConstraint(Sketcher.Constraint("Coincident", 5, 2, 6, 1))
sketch28.addConstraint(Sketcher.Constraint("Coincident", 6, 2, 7, 1))
sketch28.addConstraint(Sketcher.Constraint("Coincident", 7, 2, 4, 1))
sketch28.addConstraint(Sketcher.Constraint("Vertical", 0))
sketch28.addConstraint(Sketcher.Constraint("Horizontal", 1))
sketch28.addConstraint(Sketcher.Constraint("Vertical", 2))
sketch28.addConstraint(Sketcher.Constraint("Horizontal", 3))
sketch28.addConstraint(Sketcher.Constraint("Horizontal", 4))
sketch28.addConstraint(Sketcher.Constraint("Vertical", 5))
sketch28.addConstraint(Sketcher.Constraint("Horizontal", 6))
sketch28.addConstraint(Sketcher.Constraint("Vertical", 7))
sketch28.addConstraint(Sketcher.Constraint("Symmetric", 0, 2, 2, 2, -1, 1))
sketch28.addConstraint(Sketcher.Constraint("Symmetric", 4, 2, 6, 2, -1, 1))
sketch28.addConstraint(Sketcher.Constraint("Equal", 3, 0))
sketch28.addConstraint(Sketcher.Constraint("Equal", 6, 5))
sketch28.addConstraint(Sketcher.Constraint("DistanceX", 1, 1, 1, 2, 110.0))
sketch28.addConstraint(Sketcher.Constraint("DistanceX", 4, 2, 4, 1, 100.0))
pocket20 = body.newObject("PartDesign::Pocket", "Pocket019")
pocket20.Profile = sketch28
pocket20.Length = 10
pocket20.Reversed = True

sketch29 = body.newObject("Sketcher::SketchObject", "Sketch028")
sketch29.AttachmentSupport = (doc.getObject("XZ_Plane"), [""])
sketch29.MapMode = "FlatFace"
sketch29.AttachmentOffset = App.Placement(App.Vector(0, 0, -68), App.Rotation())
sketch29.addGeometry(Part.Circle(App.Vector(0, 0, 0), App.Vector(0, 0, 1), 14), False)
sketch29.addConstraint(Sketcher.Constraint("Coincident", 0, 3, -1, 1))
sketch29.addConstraint(Sketcher.Constraint("Diameter", 0, 28.0))
pocket21 = body.newObject("PartDesign::Pocket", "Pocket020")
pocket21.Profile = sketch29
pocket21.Length = 7
pocket21.Reversed = True

doc.recompute()
